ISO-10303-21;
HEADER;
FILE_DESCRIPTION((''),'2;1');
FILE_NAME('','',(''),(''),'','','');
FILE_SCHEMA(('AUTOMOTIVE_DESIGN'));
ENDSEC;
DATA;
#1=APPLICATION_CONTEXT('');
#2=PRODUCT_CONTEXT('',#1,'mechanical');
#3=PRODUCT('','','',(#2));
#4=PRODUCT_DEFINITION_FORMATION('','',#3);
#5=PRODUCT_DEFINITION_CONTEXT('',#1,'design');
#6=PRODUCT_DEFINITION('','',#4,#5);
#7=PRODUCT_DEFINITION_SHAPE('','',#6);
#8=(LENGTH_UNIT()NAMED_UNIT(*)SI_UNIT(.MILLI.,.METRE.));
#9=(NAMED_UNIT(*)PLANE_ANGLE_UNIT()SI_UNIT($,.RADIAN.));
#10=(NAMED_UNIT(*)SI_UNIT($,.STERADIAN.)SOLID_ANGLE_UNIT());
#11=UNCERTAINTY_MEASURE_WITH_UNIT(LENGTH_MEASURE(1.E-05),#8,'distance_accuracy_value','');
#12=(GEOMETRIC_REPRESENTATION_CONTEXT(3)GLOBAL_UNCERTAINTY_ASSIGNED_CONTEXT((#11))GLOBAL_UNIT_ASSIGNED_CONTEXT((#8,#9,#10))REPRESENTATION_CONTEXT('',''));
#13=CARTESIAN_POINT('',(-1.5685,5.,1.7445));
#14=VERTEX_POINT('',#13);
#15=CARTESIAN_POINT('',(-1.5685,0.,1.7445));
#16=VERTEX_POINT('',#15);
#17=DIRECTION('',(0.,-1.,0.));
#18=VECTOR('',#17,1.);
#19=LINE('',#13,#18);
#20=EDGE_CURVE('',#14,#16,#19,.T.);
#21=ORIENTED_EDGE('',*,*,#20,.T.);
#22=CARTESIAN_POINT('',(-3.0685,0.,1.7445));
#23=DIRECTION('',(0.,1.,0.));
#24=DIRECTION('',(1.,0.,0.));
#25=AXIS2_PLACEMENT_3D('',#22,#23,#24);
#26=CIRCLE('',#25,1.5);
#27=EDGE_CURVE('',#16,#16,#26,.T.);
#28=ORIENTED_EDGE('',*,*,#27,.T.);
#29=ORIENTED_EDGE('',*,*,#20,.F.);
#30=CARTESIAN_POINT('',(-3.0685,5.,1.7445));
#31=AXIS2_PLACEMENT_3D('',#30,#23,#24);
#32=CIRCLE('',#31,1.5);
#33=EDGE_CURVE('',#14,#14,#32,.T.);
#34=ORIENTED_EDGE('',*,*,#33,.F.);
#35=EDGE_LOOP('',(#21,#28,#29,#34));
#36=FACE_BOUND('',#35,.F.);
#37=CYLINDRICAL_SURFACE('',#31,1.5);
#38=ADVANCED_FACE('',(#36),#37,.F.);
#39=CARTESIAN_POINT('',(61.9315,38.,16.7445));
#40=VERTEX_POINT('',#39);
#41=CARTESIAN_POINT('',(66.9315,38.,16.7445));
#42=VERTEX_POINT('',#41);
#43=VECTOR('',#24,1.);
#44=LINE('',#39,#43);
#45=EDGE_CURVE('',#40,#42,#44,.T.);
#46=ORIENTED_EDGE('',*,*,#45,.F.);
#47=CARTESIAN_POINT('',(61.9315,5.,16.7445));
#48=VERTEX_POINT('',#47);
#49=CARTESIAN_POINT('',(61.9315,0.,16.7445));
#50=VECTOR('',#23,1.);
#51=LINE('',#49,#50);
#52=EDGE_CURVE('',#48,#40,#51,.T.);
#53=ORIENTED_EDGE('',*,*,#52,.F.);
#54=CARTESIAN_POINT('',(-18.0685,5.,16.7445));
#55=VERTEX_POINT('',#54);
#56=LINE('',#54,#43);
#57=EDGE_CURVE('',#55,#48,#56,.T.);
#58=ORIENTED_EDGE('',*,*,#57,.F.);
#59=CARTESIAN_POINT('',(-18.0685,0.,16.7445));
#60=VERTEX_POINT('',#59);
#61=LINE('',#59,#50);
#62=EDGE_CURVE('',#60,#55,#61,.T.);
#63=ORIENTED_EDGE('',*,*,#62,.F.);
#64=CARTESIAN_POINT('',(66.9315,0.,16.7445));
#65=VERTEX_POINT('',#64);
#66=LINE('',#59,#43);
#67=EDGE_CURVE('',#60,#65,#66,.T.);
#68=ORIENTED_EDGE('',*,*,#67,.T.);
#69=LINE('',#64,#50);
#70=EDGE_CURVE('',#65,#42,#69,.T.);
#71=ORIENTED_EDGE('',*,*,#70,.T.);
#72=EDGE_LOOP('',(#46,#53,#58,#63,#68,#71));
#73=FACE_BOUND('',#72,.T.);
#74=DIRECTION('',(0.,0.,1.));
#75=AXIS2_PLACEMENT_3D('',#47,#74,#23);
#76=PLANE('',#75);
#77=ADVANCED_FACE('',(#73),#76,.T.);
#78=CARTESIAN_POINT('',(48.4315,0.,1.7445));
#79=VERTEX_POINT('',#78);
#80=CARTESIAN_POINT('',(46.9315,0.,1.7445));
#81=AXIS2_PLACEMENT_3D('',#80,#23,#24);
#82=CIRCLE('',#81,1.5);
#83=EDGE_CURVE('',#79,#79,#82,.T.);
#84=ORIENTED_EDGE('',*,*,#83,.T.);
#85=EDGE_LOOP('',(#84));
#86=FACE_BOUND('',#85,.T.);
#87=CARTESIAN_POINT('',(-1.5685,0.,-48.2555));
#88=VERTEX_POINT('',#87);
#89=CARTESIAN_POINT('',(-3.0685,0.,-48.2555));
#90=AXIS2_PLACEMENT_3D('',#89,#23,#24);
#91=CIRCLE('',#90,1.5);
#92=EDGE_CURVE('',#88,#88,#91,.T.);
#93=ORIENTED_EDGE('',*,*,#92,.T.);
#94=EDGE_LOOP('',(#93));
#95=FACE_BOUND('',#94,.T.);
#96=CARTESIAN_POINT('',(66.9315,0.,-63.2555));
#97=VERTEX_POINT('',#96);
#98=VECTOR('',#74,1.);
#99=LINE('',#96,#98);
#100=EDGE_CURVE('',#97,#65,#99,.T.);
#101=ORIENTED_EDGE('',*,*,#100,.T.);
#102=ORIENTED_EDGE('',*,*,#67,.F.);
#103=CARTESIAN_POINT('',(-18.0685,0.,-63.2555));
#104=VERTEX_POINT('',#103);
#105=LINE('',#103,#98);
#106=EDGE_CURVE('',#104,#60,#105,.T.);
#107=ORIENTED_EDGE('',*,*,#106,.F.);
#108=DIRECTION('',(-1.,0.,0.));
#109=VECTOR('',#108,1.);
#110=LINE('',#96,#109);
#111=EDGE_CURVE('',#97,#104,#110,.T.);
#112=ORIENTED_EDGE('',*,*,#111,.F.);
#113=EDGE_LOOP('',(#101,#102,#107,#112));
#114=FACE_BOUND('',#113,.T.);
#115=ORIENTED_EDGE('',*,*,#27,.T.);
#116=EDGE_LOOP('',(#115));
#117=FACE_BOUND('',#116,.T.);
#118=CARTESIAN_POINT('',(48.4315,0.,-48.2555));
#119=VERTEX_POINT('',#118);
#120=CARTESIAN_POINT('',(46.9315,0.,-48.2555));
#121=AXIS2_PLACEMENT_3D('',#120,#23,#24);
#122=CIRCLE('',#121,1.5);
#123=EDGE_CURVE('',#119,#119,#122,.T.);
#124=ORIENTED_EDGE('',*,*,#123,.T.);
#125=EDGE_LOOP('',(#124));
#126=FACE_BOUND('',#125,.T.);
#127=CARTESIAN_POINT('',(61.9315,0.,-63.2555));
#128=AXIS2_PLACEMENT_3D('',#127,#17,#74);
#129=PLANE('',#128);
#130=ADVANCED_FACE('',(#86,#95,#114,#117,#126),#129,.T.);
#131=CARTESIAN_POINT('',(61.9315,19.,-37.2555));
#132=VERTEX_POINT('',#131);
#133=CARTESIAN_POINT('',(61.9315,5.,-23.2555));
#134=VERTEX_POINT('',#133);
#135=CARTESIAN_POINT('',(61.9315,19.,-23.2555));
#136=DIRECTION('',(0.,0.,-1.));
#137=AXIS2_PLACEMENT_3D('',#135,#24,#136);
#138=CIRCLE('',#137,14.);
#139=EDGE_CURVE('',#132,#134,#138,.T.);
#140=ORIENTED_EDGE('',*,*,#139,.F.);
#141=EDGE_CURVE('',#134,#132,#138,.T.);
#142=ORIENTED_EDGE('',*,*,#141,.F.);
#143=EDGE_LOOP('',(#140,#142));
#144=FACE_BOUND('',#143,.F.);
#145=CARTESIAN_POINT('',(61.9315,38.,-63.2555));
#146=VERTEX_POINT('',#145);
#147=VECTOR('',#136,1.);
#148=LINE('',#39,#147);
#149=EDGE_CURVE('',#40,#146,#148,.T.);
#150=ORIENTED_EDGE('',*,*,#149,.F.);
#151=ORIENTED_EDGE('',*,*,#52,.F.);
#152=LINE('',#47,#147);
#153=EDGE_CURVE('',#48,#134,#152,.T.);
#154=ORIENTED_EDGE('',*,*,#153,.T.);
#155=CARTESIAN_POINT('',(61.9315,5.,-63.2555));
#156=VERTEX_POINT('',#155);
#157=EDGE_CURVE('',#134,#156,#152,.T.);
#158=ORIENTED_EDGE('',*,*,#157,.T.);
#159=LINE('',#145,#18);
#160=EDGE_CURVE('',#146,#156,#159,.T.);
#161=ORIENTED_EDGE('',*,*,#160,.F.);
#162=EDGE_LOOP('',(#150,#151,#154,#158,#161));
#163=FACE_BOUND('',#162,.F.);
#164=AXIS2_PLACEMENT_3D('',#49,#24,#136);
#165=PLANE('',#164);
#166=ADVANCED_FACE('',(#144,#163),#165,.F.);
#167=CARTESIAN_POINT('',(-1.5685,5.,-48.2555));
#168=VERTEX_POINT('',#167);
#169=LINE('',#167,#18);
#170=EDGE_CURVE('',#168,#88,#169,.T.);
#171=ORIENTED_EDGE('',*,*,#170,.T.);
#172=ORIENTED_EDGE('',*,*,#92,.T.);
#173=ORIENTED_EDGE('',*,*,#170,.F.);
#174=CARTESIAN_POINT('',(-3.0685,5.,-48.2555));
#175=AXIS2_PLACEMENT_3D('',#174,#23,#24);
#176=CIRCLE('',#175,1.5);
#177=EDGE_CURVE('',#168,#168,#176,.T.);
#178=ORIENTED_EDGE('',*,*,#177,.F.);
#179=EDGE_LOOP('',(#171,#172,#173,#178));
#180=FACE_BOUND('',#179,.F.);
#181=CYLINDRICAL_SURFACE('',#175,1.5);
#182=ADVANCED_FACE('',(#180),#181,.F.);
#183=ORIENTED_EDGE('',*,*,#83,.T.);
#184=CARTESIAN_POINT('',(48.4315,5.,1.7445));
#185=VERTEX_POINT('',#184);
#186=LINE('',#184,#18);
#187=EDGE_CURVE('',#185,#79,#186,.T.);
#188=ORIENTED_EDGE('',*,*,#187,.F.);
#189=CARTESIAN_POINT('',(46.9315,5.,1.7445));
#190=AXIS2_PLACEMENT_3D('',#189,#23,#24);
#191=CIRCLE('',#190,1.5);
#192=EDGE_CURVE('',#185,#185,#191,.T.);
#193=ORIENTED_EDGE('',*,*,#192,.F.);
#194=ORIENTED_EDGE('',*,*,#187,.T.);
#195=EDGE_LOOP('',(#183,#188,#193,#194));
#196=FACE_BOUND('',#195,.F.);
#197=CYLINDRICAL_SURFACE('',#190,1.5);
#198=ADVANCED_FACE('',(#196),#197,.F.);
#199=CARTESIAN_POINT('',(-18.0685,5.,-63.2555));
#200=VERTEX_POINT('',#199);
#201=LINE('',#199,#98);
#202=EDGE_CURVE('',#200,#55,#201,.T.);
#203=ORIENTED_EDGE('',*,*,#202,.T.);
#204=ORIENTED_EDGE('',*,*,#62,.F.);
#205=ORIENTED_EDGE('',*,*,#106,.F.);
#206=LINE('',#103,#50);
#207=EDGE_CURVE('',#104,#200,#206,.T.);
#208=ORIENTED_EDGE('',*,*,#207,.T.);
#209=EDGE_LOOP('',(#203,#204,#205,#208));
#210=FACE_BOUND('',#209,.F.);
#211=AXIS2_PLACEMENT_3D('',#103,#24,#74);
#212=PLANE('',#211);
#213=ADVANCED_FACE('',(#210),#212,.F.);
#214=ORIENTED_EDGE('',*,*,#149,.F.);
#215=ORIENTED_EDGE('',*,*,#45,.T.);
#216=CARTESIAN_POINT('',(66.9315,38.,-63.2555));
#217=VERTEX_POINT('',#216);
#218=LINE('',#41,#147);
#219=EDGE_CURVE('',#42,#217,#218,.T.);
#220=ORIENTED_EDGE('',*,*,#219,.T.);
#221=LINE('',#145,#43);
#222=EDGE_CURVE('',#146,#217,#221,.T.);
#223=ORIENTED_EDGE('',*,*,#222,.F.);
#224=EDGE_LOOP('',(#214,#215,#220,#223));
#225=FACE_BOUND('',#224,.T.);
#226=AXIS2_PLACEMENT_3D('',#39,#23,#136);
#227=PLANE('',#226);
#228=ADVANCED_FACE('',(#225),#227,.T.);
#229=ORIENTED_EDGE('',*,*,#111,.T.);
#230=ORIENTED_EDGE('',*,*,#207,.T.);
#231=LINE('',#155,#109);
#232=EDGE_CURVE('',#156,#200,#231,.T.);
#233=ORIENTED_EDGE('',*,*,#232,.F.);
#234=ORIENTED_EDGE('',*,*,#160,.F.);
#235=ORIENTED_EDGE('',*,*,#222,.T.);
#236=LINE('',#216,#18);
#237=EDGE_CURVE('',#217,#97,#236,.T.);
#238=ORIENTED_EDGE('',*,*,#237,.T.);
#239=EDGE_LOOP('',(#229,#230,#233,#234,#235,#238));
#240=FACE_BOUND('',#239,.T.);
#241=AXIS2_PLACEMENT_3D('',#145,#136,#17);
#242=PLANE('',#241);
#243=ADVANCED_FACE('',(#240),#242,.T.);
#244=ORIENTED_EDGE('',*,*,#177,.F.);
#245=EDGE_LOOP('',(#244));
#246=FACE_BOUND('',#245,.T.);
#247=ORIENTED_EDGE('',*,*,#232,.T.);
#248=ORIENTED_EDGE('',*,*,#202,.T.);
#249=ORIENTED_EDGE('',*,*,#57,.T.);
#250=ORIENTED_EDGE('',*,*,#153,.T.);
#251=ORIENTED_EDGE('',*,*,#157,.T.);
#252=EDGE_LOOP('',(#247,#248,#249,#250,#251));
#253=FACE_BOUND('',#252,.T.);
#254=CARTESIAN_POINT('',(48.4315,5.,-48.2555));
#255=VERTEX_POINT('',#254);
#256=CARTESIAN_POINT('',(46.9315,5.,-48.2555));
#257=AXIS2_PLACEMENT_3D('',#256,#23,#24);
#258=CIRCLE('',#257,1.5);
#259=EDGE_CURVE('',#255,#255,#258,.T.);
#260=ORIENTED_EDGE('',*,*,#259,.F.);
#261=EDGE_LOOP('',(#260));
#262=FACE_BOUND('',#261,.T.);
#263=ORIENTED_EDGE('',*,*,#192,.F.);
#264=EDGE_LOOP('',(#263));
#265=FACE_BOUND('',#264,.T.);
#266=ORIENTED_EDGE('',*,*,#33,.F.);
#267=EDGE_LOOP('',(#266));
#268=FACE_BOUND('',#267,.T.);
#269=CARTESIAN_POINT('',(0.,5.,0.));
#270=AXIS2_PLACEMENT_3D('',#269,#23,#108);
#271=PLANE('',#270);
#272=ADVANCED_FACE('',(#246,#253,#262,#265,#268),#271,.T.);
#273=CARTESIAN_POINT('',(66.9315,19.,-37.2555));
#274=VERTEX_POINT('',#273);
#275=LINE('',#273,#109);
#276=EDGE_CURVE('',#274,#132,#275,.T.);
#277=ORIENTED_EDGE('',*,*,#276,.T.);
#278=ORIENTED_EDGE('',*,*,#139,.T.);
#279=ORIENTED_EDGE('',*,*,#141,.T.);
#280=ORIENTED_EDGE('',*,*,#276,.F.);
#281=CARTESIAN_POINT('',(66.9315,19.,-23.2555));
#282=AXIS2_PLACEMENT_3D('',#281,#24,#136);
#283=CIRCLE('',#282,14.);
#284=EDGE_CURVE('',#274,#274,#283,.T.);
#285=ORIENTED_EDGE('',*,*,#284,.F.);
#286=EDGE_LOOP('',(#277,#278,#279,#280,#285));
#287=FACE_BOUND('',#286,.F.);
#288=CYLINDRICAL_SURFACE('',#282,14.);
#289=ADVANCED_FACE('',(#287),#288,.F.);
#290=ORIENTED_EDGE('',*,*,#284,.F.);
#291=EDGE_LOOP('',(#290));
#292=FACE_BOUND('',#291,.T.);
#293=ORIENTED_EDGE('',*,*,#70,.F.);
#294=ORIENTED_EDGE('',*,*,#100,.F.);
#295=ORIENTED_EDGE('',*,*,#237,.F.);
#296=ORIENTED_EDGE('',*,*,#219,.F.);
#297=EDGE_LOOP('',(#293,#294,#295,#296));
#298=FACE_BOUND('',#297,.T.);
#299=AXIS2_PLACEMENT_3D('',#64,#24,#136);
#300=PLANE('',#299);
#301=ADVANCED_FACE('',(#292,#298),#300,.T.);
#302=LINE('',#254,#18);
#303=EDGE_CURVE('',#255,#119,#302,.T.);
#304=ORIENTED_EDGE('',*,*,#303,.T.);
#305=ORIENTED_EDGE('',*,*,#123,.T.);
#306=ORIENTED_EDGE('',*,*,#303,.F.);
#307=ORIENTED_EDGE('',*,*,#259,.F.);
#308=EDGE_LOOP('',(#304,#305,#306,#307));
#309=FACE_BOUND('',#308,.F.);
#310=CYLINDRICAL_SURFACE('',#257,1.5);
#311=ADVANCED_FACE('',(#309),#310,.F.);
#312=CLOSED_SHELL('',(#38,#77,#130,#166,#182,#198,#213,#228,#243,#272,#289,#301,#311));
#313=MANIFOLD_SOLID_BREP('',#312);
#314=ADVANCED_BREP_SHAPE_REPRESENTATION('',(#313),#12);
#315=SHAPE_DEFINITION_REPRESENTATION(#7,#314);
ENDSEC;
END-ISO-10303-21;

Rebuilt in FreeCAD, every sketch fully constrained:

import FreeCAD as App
import Part
import Sketcher
Q = App.Units.Quantity

doc = App.newDocument("Part")
params = doc.addObject("Spreadsheet::Sheet", "Params")
for row, (alias, value) in enumerate([
    ("sketch1_width", "80 mm"),
    ("pad1_length", "5 mm"),
    ("sketch2_diameter", "3 mm"),
    ("pocket1_length", "5 mm"),
    ("sketch3_width", "38 mm"),
    ("sketch3_height", "80 mm"),
    ("pad2_length", "5 mm"),
    ("sketch4_diameter", "28 mm"),
    ("pocket2_length", "5 mm"),
], start=1):
    params.set(f"A{row}", alias)
    params.set(f"B{row}", "=" + value)
    params.setAlias(f"B{row}", alias)

body = doc.addObject("PartDesign::Body", "Body")

# Sketch on XZ plane
sketch1 = body.newObject("Sketcher::SketchObject", "Sketch")
sketch1.AttachmentSupport = (doc.getObject("XZ_Plane"), [""])
sketch1.MapMode = "FlatFace"
sketch1.addGeometry([
    Part.LineSegment(App.Vector(-18, -63, 0), App.Vector(-18, 17, 0)),
    Part.LineSegment(App.Vector(-18, 17, 0), App.Vector(62, 17, 0)),
    Part.LineSegment(App.Vector(62, 17, 0), App.Vector(62, -63, 0)),
    Part.LineSegment(App.Vector(62, -63, 0), App.Vector(-18, -63, 0)),
], False)
sketch1.addConstraint([
    Sketcher.Constraint("Coincident", 0, 2, 1, 1),
    Sketcher.Constraint("Coincident", 1, 2, 2, 1),
    Sketcher.Constraint("Coincident", 2, 2, 3, 1),
    Sketcher.Constraint("Coincident", 3, 2, 0, 1),
    Sketcher.Constraint("Vertical", 0),
    Sketcher.Constraint("Horizontal", 1),
    Sketcher.Constraint("Vertical", 2),
    Sketcher.Constraint("Horizontal", 3),
    Sketcher.Constraint("Equal", 3, 0),
    Sketcher.Constraint("DistanceX", 1, 1, 1, 2, Q("80 mm")),
    Sketcher.Constraint("DistanceX", 0, 2, -1, 1, Q("18.0685 mm")),
    Sketcher.Constraint("DistanceY", -1, 1, 0, 2, Q("16.7445 mm")),
])
sketch1.setExpression("Constraints[9]", "Params.sketch1_width")
pad1 = body.newObject("PartDesign::Pad", "Pad")
pad1.Profile = sketch1
pad1.setExpression("Length", "Params.pad1_length")
pad1.Reversed = True

# Sketch on XZ plane
sketch2 = body.newObject("Sketcher::SketchObject", "Sketch001")
sketch2.AttachmentSupport = (doc.getObject("XZ_Plane"), [""])
sketch2.MapMode = "FlatFace"
sketch2.AttachmentOffset = App.Placement(App.Vector(0, 0, -5), App.Rotation())
sketch2.addGeometry([
    Part.Circle(App.Vector(46.9, 1.7, 0), App.Vector(0, 0, 1), 1.5),
    Part.Circle(App.Vector(-3.1, 1.7, 0), App.Vector(0, 0, 1), 1.5),
    Part.Circle(App.Vector(-3.1, -48.3, 0), App.Vector(0, 0, 1), 1.5),
    Part.Circle(App.Vector(46.9, -48.3, 0), App.Vector(0, 0, 1), 1.5),
], False)
sketch2.addConstraint([
    Sketcher.Constraint("Equal", 0, 1),
    Sketcher.Constraint("Equal", 1, 2),
    Sketcher.Constraint("Equal", 2, 3),
    Sketcher.Constraint("Horizontal", 0, 3, 1, 3),
    Sketcher.Constraint("Horizontal", 2, 3, 3, 3),
    Sketcher.Constraint("Vertical", 1, 3, 2, 3),
    Sketcher.Constraint("Vertical", 0, 3, 3, 3),
    Sketcher.Constraint("Diameter", 0, Q("3 mm")),
    Sketcher.Constraint("DistanceX", 1, 3, 0, 3, Q("50 mm")),
    Sketcher.Constraint("DistanceY", 2, 3, 1, 3, Q("50 mm")),
    Sketcher.Constraint("DistanceX", -1, 1, 0, 3, Q("46.9315 mm")),
    Sketcher.Constraint("DistanceY", -1, 1, 0, 3, Q("1.7445 mm")),
])
sketch2.setExpression("Constraints[7]", "Params.sketch2_diameter")
pocket1 = body.newObject("PartDesign::Pocket", "Pocket")
pocket1.Profile = sketch2
pocket1.setExpression("Length", "Params.pocket1_length")
pocket1.Reversed = True

# Sketch on YZ plane
sketch3 = body.newObject("Sketcher::SketchObject", "Sketch002")
sketch3.AttachmentSupport = (doc.getObject("YZ_Plane"), [""])
sketch3.MapMode = "FlatFace"
sketch3.AttachmentOffset = App.Placement(App.Vector(0, 0, 61.9315), App.Rotation())
sketch3.addGeometry([
    Part.LineSegment(App.Vector(38, -63, 0), App.Vector(38, 17, 0)),
    Part.LineSegment(App.Vector(38, 17, 0), App.Vector(0, 17, 0)),
    Part.LineSegment(App.Vector(0, 17, 0), App.Vector(0, -63, 0)),
    Part.LineSegment(App.Vector(0, -63, 0), App.Vector(38, -63, 0)),
], False)
sketch3.addConstraint([
    Sketcher.Constraint("Coincident", 0, 2, 1, 1),
    Sketcher.Constraint("Coincident", 1, 2, 2, 1),
    Sketcher.Constraint("Coincident", 2, 2, 3, 1),
    Sketcher.Constraint("Coincident", 3, 2, 0, 1),
    Sketcher.Constraint("Vertical", 0),
    Sketcher.Constraint("Horizontal", 1),
    Sketcher.Constraint("Vertical", 2),
    Sketcher.Constraint("Horizontal", 3),
    Sketcher.Constraint("PointOnObject", 1, 2, -2),
    Sketcher.Constraint("DistanceX", 1, 2, 1, 1, Q("38 mm")),
    Sketcher.Constraint("DistanceY", 0, 1, 0, 2, Q("80 mm")),
    Sketcher.Constraint("DistanceY", -1, 1, 0, 2, Q("16.7445 mm")),
])
sketch3.setExpression("Constraints[9]", "Params.sketch3_width")
sketch3.setExpression("Constraints[10]", "Params.sketch3_height")
pad2 = body.newObject("PartDesign::Pad", "Pad001")
pad2.Profile = sketch3
pad2.setExpression("Length", "Params.pad2_length")

# Sketch on YZ plane
sketch4 = body.newObject("Sketcher::SketchObject", "Sketch003")
sketch4.AttachmentSupport = (doc.getObject("YZ_Plane"), [""])
sketch4.MapMode = "FlatFace"
sketch4.AttachmentOffset = App.Placement(App.Vector(0, 0, 66.9315), App.Rotation())
sketch4.addGeometry(Part.Circle(App.Vector(19, -23, 0), App.Vector(0, 0, 1), 14), False)
sketch4.addConstraint([
    Sketcher.Constraint("Diameter", 0, Q("28 mm")),
    Sketcher.Constraint("DistanceX", -1, 1, 0, 3, Q("19 mm")),
    Sketcher.Constraint("DistanceY", 0, 3, -1, 1, Q("23.2555 mm")),
])
sketch4.setExpression("Constraints[0]", "Params.sketch4_diameter")
pocket2 = body.newObject("PartDesign::Pocket", "Pocket001")
pocket2.Profile = sketch4
pocket2.setExpression("Length", "Params.pocket2_length")

doc.recompute()
